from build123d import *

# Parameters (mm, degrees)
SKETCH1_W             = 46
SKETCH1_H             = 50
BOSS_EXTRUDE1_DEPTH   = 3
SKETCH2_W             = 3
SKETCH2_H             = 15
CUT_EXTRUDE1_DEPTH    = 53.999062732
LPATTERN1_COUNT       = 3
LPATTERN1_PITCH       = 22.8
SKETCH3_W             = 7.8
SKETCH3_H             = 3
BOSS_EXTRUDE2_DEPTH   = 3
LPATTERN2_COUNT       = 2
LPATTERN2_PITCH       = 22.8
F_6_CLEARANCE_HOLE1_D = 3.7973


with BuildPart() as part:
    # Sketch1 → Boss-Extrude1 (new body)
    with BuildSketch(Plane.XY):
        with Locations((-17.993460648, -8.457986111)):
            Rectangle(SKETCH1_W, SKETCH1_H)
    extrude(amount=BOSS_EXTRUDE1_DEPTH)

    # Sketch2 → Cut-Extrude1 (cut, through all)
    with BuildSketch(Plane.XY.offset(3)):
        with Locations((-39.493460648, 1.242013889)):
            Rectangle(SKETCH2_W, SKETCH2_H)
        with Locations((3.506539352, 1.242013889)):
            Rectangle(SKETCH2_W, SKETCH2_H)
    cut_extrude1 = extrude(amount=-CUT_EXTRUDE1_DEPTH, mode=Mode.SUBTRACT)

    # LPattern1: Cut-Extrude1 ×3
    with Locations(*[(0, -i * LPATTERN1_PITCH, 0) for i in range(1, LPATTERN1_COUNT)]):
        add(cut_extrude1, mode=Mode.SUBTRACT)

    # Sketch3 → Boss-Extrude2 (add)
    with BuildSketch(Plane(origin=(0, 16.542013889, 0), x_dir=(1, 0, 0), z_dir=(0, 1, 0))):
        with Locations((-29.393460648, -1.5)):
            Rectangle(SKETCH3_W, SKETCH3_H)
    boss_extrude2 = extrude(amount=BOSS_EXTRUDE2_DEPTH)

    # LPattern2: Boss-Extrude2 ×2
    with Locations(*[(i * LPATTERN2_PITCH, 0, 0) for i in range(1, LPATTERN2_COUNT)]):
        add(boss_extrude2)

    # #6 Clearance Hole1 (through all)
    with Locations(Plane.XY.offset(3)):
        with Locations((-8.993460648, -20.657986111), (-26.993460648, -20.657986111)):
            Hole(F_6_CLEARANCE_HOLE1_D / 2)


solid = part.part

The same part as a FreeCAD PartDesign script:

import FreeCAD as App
import Part
import Sketcher


def add_polygon(sketch, points):
    """Adds a closed chain of lines whose ends are joined by coincident constraints."""
    first, n = sketch.GeometryCount, len(points)
    for a, b in zip(points, points[1:] + points[:1]):
        sketch.addGeometry(Part.LineSegment(App.Vector(*a, 0), App.Vector(*b, 0)), False)
    for i in range(n):
        sketch.addConstraint(Sketcher.Constraint("Coincident", first + i, 2, first + (i + 1) % n, 1))

doc = App.newDocument("Part")
params = doc.addObject("Spreadsheet::Sheet", "Params")
for row, (alias, value) in enumerate([
    ("sketch1_width", "46 mm"),
    ("sketch1_height", "50 mm"),
    ("pad1_length", "3 mm"),
    ("sketch2_width", "3 mm"),
    ("sketch2_height", "15 mm"),
    ("linearpattern_pitch", "22.8 mm"),
    ("sketch3_height", "3 mm"),
    ("sketch3_width", "7.8 mm"),
    ("pad2_length", "3 mm"),
    ("linearpattern2_pitch", "22.8 mm"),
    ("hole_diameter", "3.7973 mm"),
], start=1):
    params.set(f"A{row}", alias)
    params.set(f"B{row}", "=" + value)
    params.setAlias(f"B{row}", alias)

body = doc.addObject("PartDesign::Body", "Body")

sketch1 = body.newObject("Sketcher::SketchObject", "Sketch")
sketch1.AttachmentSupport = (doc.getObject("XY_Plane"), [""])
sketch1.MapMode = "FlatFace"
add_polygon(sketch1, [(-41, 17), (-41, -33), (5, -33), (5, 17)])
sketch1.addConstraint([
    Sketcher.Constraint("Vertical", 0),
    Sketcher.Constraint("Horizontal", 1),
    Sketcher.Constraint("Vertical", 2),
    Sketcher.Constraint("Horizontal", 3),
    Sketcher.Constraint("DistanceX", 1, 1, 1, 2, 46.0),
    Sketcher.Constraint("DistanceY", 0, 2, 0, 1, 50.0),
    Sketcher.Constraint("DistanceX", 0, 2, -1, 1, 40.993461),
    Sketcher.Constraint("DistanceY", 0, 2, -1, 1, 33.457986),
])
sketch1.setExpression("Constraints[8]", "Params.sketch1_width")
sketch1.setExpression("Constraints[9]", "Params.sketch1_height")
pad1 = body.newObject("PartDesign::Pad", "Pad")
pad1.Profile = sketch1
pad1.setExpression("Length", "Params.pad1_length")

sketch2 = body.newObject("Sketcher::SketchObject", "Sketch001")
sketch2.AttachmentSupport = (doc.getObject("XY_Plane"), [""])
sketch2.MapMode = "FlatFace"
sketch2.AttachmentOffset = App.Placement(App.Vector(0, 0, 3), App.Rotation())
add_polygon(sketch2, [(-41, 8.7), (-41, -6.3), (-38, -6.3), (-38, 8.7)])
add_polygon(sketch2, [(2, 8.7), (2, -6.3), (5, -6.3), (5, 8.7)])
sketch2.addConstraint([
    Sketcher.Constraint("Vertical", 0),
    Sketcher.Constraint("Horizontal", 1),
    Sketcher.Constraint("Vertical", 2),
    Sketcher.Constraint("Horizontal", 3),
    Sketcher.Constraint("Vertical", 4),
    Sketcher.Constraint("Horizontal", 5),
    Sketcher.Constraint("Vertical", 6),
    Sketcher.Constraint("Horizontal", 7),
    Sketcher.Constraint("Horizontal", 1, 2, 4, 2),
    Sketcher.Constraint("Horizontal", 3, 2, 6, 2),
    Sketcher.Constraint("Equal", 3, 5),
    Sketcher.Constraint("DistanceX", 1, 1, 1, 2, 3.0),
    Sketcher.Constraint("DistanceY", 0, 2, 0, 1, 15.0),
    Sketcher.Constraint("DistanceX", 1, 2, 4, 2, 40.0),
    Sketcher.Constraint("DistanceX", 0, 2, -1, 1, 40.993461),
    Sketcher.Constraint("DistanceY", 0, 2, -1, 1, 6.257986),
])
sketch2.setExpression("Constraints[19]", "Params.sketch2_width")
sketch2.setExpression("Constraints[20]", "Params.sketch2_height")
pocket1 = body.newObject("PartDesign::Pocket", "Pocket")
pocket1.Profile = sketch2
pocket1.Type = "ThroughAll"
doc.recompute()

linearpattern = body.newObject("PartDesign::LinearPattern", "LinearPattern")
linearpattern.Originals = [pocket1]
linearpattern.Direction = (doc.getObject("Y_Axis"), [""])
linearpattern.Mode = "offset"
linearpattern.setExpression("Offset", "Params.linearpattern_pitch")
linearpattern.Occurrences = 3
linearpattern.Reversed = True
body.Tip = linearpattern

sketch3 = body.newObject("Sketcher::SketchObject", "Sketch002")
sketch3.AttachmentSupport = (doc.getObject("XZ_Plane"), [""])
sketch3.MapMode = "FlatFace"
sketch3.AttachmentOffset = App.Placement(App.Vector(0, 0, -16.542014), App.Rotation())
add_polygon(sketch3, [(-33.3, 0), (-33.3, 3), (-25.5, 3), (-25.5, 0)])
sketch3.addConstraint([
    Sketcher.Constraint("Vertical", 0),
    Sketcher.Constraint("Horizontal", 1),
    Sketcher.Constraint("Vertical", 2),
    Sketcher.Constraint("Horizontal", 3),
    Sketcher.Constraint("PointOnObject", 2, 2, -1),
    Sketcher.Constraint("DistanceY", 0, 1, 0, 2, 3.0),
    Sketcher.Constraint("DistanceX", 1, 1, 1, 2, 7.8),
    Sketcher.Constraint("DistanceX", 0, 2, -1, 1, 33.293461),
])
sketch3.setExpression("Constraints[9]", "Params.sketch3_height")
sketch3.setExpression("Constraints[10]", "Params.sketch3_width")
pad2 = body.newObject("PartDesign::Pad", "Pad001")
pad2.Profile = sketch3
pad2.setExpression("Length", "Params.pad2_length")
pad2.Reversed = True
doc.recompute()

linearpattern2 = body.newObject("PartDesign::LinearPattern", "LinearPattern001")
linearpattern2.Originals = [pad2]
linearpattern2.Direction = (doc.getObject("X_Axis"), [""])
linearpattern2.Mode = "offset"
linearpattern2.setExpression("Offset", "Params.linearpattern2_pitch")
linearpattern2.Occurrences = 2
body.Tip = linearpattern2

sketch4 = body.newObject("Sketcher::SketchObject", "Sketch003")
sketch4.AttachmentSupport = (doc.getObject("XY_Plane"), [""])
sketch4.MapMode = "FlatFace"
sketch4.AttachmentOffset = App.Placement(App.Vector(0, 0, 3), App.Rotation())
sketch4.addGeometry([
    Part.Circle(App.Vector(-9, -20.7, 0), App.Vector(0, 0, 1), 1.9),
    Part.Circle(App.Vector(-27, -20.7, 0), App.Vector(0, 0, 1), 1.9),
], False)
sketch4.addConstraint([
    Sketcher.Constraint("Equal", 0, 1),
    Sketcher.Constraint("Horizontal", 0, 3, 1, 3),
    Sketcher.Constraint("DistanceX", 1, 3, 0, 3, 18.0),
    Sketcher.Constraint("Diameter", 0, 3.7973),
    Sketcher.Constraint("DistanceX", 0, 3, -1, 1, 8.993461),
    Sketcher.Constraint("DistanceY", 0, 3, -1, 1, 20.657986),
])
doc.recompute()
hole = body.newObject("PartDesign::Hole", "Hole")
hole.Profile = sketch4
hole.ThreadType = "None"
hole.setExpression("Diameter", "Params.hole_diameter")
hole.DepthType = "ThroughAll"

doc.recompute()
